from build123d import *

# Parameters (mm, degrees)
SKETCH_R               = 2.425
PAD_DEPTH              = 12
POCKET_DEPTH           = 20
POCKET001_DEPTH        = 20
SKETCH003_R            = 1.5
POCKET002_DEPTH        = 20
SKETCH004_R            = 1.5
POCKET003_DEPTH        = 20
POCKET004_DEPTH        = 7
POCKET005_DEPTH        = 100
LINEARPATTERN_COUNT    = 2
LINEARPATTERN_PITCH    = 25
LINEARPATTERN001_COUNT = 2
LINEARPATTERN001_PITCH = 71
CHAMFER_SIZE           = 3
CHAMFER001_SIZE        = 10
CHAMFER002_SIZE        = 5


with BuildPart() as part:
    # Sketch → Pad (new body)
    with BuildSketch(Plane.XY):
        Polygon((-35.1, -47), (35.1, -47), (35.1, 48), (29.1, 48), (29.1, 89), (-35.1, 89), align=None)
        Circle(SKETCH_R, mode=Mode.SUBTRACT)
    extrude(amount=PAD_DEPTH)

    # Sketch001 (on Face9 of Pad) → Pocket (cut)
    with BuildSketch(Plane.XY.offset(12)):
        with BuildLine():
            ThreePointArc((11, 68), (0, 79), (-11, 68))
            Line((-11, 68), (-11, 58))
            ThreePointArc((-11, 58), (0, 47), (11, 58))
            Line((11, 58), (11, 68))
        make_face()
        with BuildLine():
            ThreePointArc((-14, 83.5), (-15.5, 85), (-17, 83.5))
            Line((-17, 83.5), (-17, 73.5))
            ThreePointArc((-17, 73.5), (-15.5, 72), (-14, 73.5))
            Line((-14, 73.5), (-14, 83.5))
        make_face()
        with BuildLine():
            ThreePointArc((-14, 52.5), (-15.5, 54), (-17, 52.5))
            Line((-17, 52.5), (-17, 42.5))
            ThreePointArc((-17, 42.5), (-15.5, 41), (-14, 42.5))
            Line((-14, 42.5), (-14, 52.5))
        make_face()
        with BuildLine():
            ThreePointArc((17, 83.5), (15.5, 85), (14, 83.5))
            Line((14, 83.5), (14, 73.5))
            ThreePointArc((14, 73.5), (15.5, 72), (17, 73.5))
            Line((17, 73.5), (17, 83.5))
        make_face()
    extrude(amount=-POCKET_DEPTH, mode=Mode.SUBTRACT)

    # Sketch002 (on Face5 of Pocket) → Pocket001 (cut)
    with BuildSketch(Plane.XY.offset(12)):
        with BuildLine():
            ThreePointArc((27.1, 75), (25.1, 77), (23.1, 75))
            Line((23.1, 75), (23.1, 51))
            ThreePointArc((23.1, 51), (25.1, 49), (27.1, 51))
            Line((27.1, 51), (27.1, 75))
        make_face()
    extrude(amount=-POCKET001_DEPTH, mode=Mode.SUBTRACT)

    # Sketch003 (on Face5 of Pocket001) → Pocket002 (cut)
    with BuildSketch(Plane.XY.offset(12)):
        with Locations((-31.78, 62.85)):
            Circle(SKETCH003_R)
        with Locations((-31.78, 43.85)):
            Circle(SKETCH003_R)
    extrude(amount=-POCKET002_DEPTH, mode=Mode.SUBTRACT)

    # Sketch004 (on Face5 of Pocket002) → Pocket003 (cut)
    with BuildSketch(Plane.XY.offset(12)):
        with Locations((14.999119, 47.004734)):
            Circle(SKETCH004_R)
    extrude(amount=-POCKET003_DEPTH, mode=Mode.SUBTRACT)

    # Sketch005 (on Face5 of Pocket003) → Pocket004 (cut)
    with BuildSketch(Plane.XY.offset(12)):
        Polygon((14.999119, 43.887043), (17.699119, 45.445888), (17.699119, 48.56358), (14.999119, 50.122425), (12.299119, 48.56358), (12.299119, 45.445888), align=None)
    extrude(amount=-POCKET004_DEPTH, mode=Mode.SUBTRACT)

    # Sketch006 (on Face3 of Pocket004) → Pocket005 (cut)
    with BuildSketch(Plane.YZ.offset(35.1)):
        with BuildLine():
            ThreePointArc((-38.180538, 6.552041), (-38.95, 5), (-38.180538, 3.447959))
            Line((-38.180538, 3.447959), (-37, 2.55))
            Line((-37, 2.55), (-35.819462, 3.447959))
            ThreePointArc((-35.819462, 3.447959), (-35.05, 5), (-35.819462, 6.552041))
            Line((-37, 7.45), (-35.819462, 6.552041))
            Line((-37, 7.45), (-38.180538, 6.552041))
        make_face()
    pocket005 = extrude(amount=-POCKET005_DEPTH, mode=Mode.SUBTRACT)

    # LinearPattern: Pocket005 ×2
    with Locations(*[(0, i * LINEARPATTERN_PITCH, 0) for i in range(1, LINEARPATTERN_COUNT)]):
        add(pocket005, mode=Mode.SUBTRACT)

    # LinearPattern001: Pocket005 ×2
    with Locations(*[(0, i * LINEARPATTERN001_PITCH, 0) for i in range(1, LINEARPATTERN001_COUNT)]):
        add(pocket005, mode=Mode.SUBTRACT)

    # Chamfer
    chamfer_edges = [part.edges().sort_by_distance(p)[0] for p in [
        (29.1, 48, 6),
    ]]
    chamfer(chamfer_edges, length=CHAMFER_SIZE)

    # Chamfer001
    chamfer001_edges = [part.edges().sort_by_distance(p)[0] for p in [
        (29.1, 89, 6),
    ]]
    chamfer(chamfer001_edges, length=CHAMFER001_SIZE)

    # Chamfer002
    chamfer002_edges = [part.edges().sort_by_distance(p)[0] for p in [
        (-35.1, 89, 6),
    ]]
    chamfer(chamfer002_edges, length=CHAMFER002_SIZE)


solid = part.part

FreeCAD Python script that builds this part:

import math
import FreeCAD as App
import Part
import Sketcher

V = App.Vector
Q = App.Units.Quantity


def edges_at(feature, points):
    """Names of the edges that pass closest to the given points."""
    edges = feature.Shape.Edges
    near = lambda p: min(range(len(edges)), key=lambda i: edges[i].distToShape(Part.Vertex(*p))[0])
    return sorted({f"Edge{near(p) + 1}" for p in points})

doc = App.newDocument("Part")
body = doc.addObject("PartDesign::Body", "Body")

sketch1 = doc.addObject("Sketcher::SketchObject", "Sketch")
body.addObject(sketch1)
sketch1.AttachmentSupport = (doc.XY_Plane, [""])
sketch1.MapMode = "FlatFace"
sketch1.addGeometry([
    Part.LineSegment(V(-35.1, -47, 0), V(35.1, -47, 0)),
    Part.LineSegment(V(35.1, -47, 0), V(35.1, 48, 0)),
    Part.LineSegment(V(35.1, 48, 0), V(29.1, 48, 0)),
    Part.LineSegment(V(29.1, 48, 0), V(29.1, 89, 0)),
    Part.LineSegment(V(29.1, 89, 0), V(-35.1, 89, 0)),
    Part.LineSegment(V(-35.1, 89, 0), V(-35.1, -47, 0)),
    Part.Circle(V(0, 0, 0), V(0, 0, 1), 2.4),
], False)
sketch1.addConstraint([
    Sketcher.Constraint("Coincident", 0, 2, 1, 1),
    Sketcher.Constraint("Coincident", 1, 2, 2, 1),
    Sketcher.Constraint("Coincident", 2, 2, 3, 1),
    Sketcher.Constraint("Coincident", 3, 2, 4, 1),
    Sketcher.Constraint("Coincident", 4, 2, 5, 1),
    Sketcher.Constraint("Coincident", 5, 2, 0, 1),
    Sketcher.Constraint("Horizontal", 0),
    Sketcher.Constraint("Vertical", 1),
    Sketcher.Constraint("Horizontal", 2),
    Sketcher.Constraint("Vertical", 3),
    Sketcher.Constraint("Horizontal", 4),
    Sketcher.Constraint("Vertical", 5),
    Sketcher.Constraint("Coincident", 6, 3, -1, 1),
    Sketcher.Constraint("Diameter", 6, 4.85),
    Sketcher.Constraint("DistanceX", 2, 2, 2, 1, 6.0),
    Sketcher.Constraint("DistanceY", 1, 1, 1, 2, 95.0),
    Sketcher.Constraint("DistanceY", 3, 1, 3, 2, 41.0),
    Sketcher.Constraint("DistanceX", 0, 1, 0, 2, 70.2),
    Sketcher.Constraint("DistanceY", 0, 2, -1, 1, 47.0),
    Sketcher.Constraint("DistanceX", -1, 1, 0, 2, 35.1),
])
pad1 = doc.addObject("PartDesign::Pad", "Pad")
body.addObject(pad1)
pad1.Profile = sketch1
pad1.Length = 12

sketch2 = doc.addObject("Sketcher::SketchObject", "Sketch001")
body.addObject(sketch2)
sketch2.AttachmentSupport = (doc.XY_Plane, [""])
sketch2.MapMode = "FlatFace"
sketch2.AttachmentOffset = App.Placement(V(0, 0, 12), App.Rotation())
sketch2.addGeometry([
    Part.ArcOfCircle(Part.Circle(V(0, 68, 0), V(0, 0, 1), 11), math.radians(0), math.radians(180)),
    Part.LineSegment(V(-11, 68, 0), V(-11, 58, 0)),
    Part.ArcOfCircle(Part.Circle(V(0, 58, 0), V(0, 0, 1), 11), math.radians(180), math.radians(360)),
    Part.LineSegment(V(11, 58, 0), V(11, 68, 0)),
    Part.ArcOfCircle(Part.Circle(V(-15.5, 83.5, 0), V(0, 0, 1), 1.5), math.radians(0), math.radians(180)),
    Part.LineSegment(V(-17, 83.5, 0), V(-17, 73.5, 0)),
    Part.ArcOfCircle(Part.Circle(V(-15.5, 73.5, 0), V(0, 0, 1), 1.5), math.radians(180), math.radians(360)),
    Part.LineSegment(V(-14, 73.5, 0), V(-14, 83.5, 0)),
    Part.ArcOfCircle(Part.Circle(V(-15.5, 52.5, 0), V(0, 0, 1), 1.5), math.radians(0), math.radians(180)),
    Part.LineSegment(V(-17, 52.5, 0), V(-17, 42.5, 0)),
    Part.ArcOfCircle(Part.Circle(V(-15.5, 42.5, 0), V(0, 0, 1), 1.5), math.radians(180), math.radians(360)),
    Part.LineSegment(V(-14, 42.5, 0), V(-14, 52.5, 0)),
    Part.ArcOfCircle(Part.Circle(V(15.5, 83.5, 0), V(0, 0, 1), 1.5), math.radians(0), math.radians(180)),
    Part.LineSegment(V(14, 83.5, 0), V(14, 73.5, 0)),
    Part.ArcOfCircle(Part.Circle(V(15.5, 73.5, 0), V(0, 0, 1), 1.5), math.radians(180), math.radians(360)),
    Part.LineSegment(V(17, 73.5, 0), V(17, 83.5, 0)),
], False)
sketch2.addConstraint([
    Sketcher.Constraint("Tangent", 0, 2, 1, 1),
    Sketcher.Constraint("Tangent", 1, 2, 2, 1),
    Sketcher.Constraint("Tangent", 2, 2, 3, 1),
    Sketcher.Constraint("Tangent", 3, 2, 0, 1),
    Sketcher.Constraint("Tangent", 4, 2, 5, 1),
    Sketcher.Constraint("Tangent", 5, 2, 6, 1),
    Sketcher.Constraint("Tangent", 6, 2, 7, 1),
    Sketcher.Constraint("Tangent", 7, 2, 4, 1),
    Sketcher.Constraint("Tangent", 8, 2, 9, 1),
    Sketcher.Constraint("Tangent", 9, 2, 10, 1),
    Sketcher.Constraint("Tangent", 10, 2, 11, 1),
    Sketcher.Constraint("Tangent", 11, 2, 8, 1),
    Sketcher.Constraint("Tangent", 12, 2, 13, 1),
    Sketcher.Constraint("Tangent", 13, 2, 14, 1),
    Sketcher.Constraint("Tangent", 14, 2, 15, 1),
    Sketcher.Constraint("Tangent", 15, 2, 12, 1),
    Sketcher.Constraint("Vertical", 1),
    Sketcher.Constraint("Vertical", 3),
    Sketcher.Constraint("Vertical", 5),
    Sketcher.Constraint("Vertical", 7),
    Sketcher.Constraint("Vertical", 9),
    Sketcher.Constraint("Vertical", 11),
    Sketcher.Constraint("Vertical", 13),
    Sketcher.Constraint("Vertical", 15),
    Sketcher.Constraint("Equal", 6, 8),
    Sketcher.Constraint("Equal", 10, 12),
    Sketcher.Constraint("Symmetric", 4, 3, 12, 3, -2),
    Sketcher.Constraint("PointOnObject", 0, 3, -2),
    Sketcher.Constraint("Horizontal", 6, 3, 14, 3),
    Sketcher.Constraint("Vertical", 6, 3, 8, 3),
    Sketcher.Constraint("Equal", 3, 5),
    Sketcher.Constraint("Equal", 7, 9),
    Sketcher.Constraint("Radius", 0, 11.0),
    Sketcher.Constraint("Radius", 4, 1.5),
    Sketcher.Constraint("DistanceY", 1, 2, 1, 1, 10.0),
    Sketcher.Constraint("DistanceY", -1, 1, 0, 3, 68.0),
    Sketcher.Constraint("DistanceX", 4, 2, -1, 1, 17.0),
    Sketcher.Constraint("DistanceY", 8, 3, 6, 3, 21.0),
    Sketcher.Constraint("DistanceY", -1, 1, 4, 3, 83.5),
])
pocket1 = doc.addObject("PartDesign::Pocket", "Pocket")
body.addObject(pocket1)
pocket1.Profile = sketch2
pocket1.Length = 20

sketch3 = doc.addObject("Sketcher::SketchObject", "Sketch002")
body.addObject(sketch3)
sketch3.AttachmentSupport = (doc.XY_Plane, [""])
sketch3.MapMode = "FlatFace"
sketch3.AttachmentOffset = App.Placement(V(0, 0, 12), App.Rotation())
sketch3.addGeometry([
    Part.ArcOfCircle(Part.Circle(V(25.1, 75, 0), V(0, 0, 1), 2), math.radians(0), math.radians(180)),
    Part.LineSegment(V(23.1, 75, 0), V(23.1, 51, 0)),
    Part.ArcOfCircle(Part.Circle(V(25.1, 51, 0), V(0, 0, 1), 2), math.radians(180), math.radians(360)),
    Part.LineSegment(V(27.1, 51, 0), V(27.1, 75, 0)),
], False)
sketch3.addConstraint([
    Sketcher.Constraint("Tangent", 0, 2, 1, 1),
    Sketcher.Constraint("Tangent", 1, 2, 2, 1),
    Sketcher.Constraint("Tangent", 2, 2, 3, 1),
    Sketcher.Constraint("Tangent", 3, 2, 0, 1),
    Sketcher.Constraint("Vertical", 1),
    Sketcher.Constraint("Vertical", 3),
    Sketcher.Constraint("Radius", 0, 2.0),
    Sketcher.Constraint("DistanceY", 1, 2, 1, 1, 24.0),
    Sketcher.Constraint("DistanceY", -1, 1, 0, 3, 75.0),
    Sketcher.Constraint("DistanceX", -1, 1, 0, 3, 25.1),
])
pocket2 = doc.addObject("PartDesign::Pocket", "Pocket001")
body.addObject(pocket2)
pocket2.Profile = sketch3
pocket2.Length = 20

sketch4 = doc.addObject("Sketcher::SketchObject", "Sketch003")
body.addObject(sketch4)
sketch4.AttachmentSupport = (doc.XY_Plane, [""])
sketch4.MapMode = "FlatFace"
sketch4.AttachmentOffset = App.Placement(V(0, 0, 12), App.Rotation())
sketch4.addGeometry([
    Part.Circle(V(-31.8, 62.9, 0), V(0, 0, 1), 1.5),
    Part.Circle(V(-31.8, 43.9, 0), V(0, 0, 1), 1.5),
], False)
sketch4.addConstraint([
    Sketcher.Constraint("Equal", 0, 1),
    Sketcher.Constraint("Vertical", 0, 3, 1, 3),
    Sketcher.Constraint("Diameter", 0, 3.0),
    Sketcher.Constraint("DistanceY", 1, 3, 0, 3, 19.0),
    Sketcher.Constraint("DistanceX", 0, 3, -1, 1, 31.78),
    Sketcher.Constraint("DistanceY", -1, 1, 0, 3, 62.85),
])
pocket3 = doc.addObject("PartDesign::Pocket", "Pocket002")
body.addObject(pocket3)
pocket3.Profile = sketch4
pocket3.Length = 20

sketch5 = doc.addObject("Sketcher::SketchObject", "Sketch004")
body.addObject(sketch5)
sketch5.AttachmentSupport = (doc.XY_Plane, [""])
sketch5.MapMode = "FlatFace"
sketch5.AttachmentOffset = App.Placement(V(0, 0, 12), App.Rotation())
sketch5.addGeometry(Part.Circle(V(15, 47, 0), V(0, 0, 1), 1.5), False)
sketch5.addConstraint([
    Sketcher.Constraint("Diameter", 0, 3.0),
    Sketcher.Constraint("DistanceX", -1, 1, 0, 3, 14.999119),
    Sketcher.Constraint("DistanceY", -1, 1, 0, 3, 47.004734),
])
pocket4 = doc.addObject("PartDesign::Pocket", "Pocket003")
body.addObject(pocket4)
pocket4.Profile = sketch5
pocket4.Length = 20

sketch6 = doc.addObject("Sketcher::SketchObject", "Sketch005")
body.addObject(sketch6)
sketch6.AttachmentSupport = (doc.XY_Plane, [""])
sketch6.MapMode = "FlatFace"
sketch6.AttachmentOffset = App.Placement(V(0, 0, 12), App.Rotation())
sketch6.addGeometry([
    Part.LineSegment(V(15, 43.9, 0), V(17.7, 45.4, 0)),
    Part.LineSegment(V(17.7, 45.4, 0), V(17.7, 48.6, 0)),
    Part.LineSegment(V(17.7, 48.6, 0), V(15, 50.1, 0)),
    Part.LineSegment(V(15, 50.1, 0), V(12.3, 48.6, 0)),
    Part.LineSegment(V(12.3, 48.6, 0), V(12.3, 45.4, 0)),
    Part.LineSegment(V(12.3, 45.4, 0), V(15, 43.9, 0)),
], False)
sketch6.addConstraint([
    Sketcher.Constraint("Coincident", 0, 2, 1, 1),
    Sketcher.Constraint("Coincident", 1, 2, 2, 1),
    Sketcher.Constraint("Coincident", 2, 2, 3, 1),
    Sketcher.Constraint("Coincident", 3, 2, 4, 1),
    Sketcher.Constraint("Coincident", 4, 2, 5, 1),
    Sketcher.Constraint("Coincident", 5, 2, 0, 1),
    Sketcher.Constraint("Vertical", 1),
    Sketcher.Constraint("Vertical", 4),
    Sketcher.Constraint("Parallel", 0, 3),
    Sketcher.Constraint("Parallel", 2, 5),
    Sketcher.Constraint("Horizontal", 1, 2, 3, 2),
    Sketcher.Constraint("Horizontal", 0, 2, 4, 2),
    Sketcher.Constraint("Vertical", 2, 2, 5, 2),
    Sketcher.Constraint("Angle", 0, Q("29.999988 deg")),
    Sketcher.Constraint("DistanceX", 2, 2, 1, 2, 2.7),
    Sketcher.Constraint("DistanceY", 1, 1, 1, 2, 3.117692),
    Sketcher.Constraint("DistanceX", -1, 1, 0, 2, 17.699119),
    Sketcher.Constraint("DistanceY", -1, 1, 1, 2, 48.56358),
])
pocket5 = doc.addObject("PartDesign::Pocket", "Pocket004")
body.addObject(pocket5)
pocket5.Profile = sketch6
pocket5.Length = 7

sketch7 = doc.addObject("Sketcher::SketchObject", "Sketch006")
body.addObject(sketch7)
sketch7.AttachmentSupport = (doc.YZ_Plane, [""])
sketch7.MapMode = "FlatFace"
sketch7.AttachmentOffset = App.Placement(V(0, 0, 35.1), App.Rotation())
sketch7.addGeometry([
    Part.ArcOfCircle(Part.Circle(V(-37, 5, 0), V(0, 0, 1), 2), math.radians(127), math.radians(233)),
    Part.LineSegment(V(-38.2, 3.4, 0), V(-37, 2.5, 0)),
    Part.LineSegment(V(-37, 2.5, 0), V(-35.8, 3.4, 0)),
    Part.ArcOfCircle(Part.Circle(V(-37, 5, 0), V(0, 0, 1), 2), math.radians(-53), math.radians(53)),
    Part.LineSegment(V(-35.8, 6.6, 0), V(-37, 7.5, 0)),
    Part.LineSegment(V(-37, 7.5, 0), V(-38.2, 6.6, 0)),
], False)
sketch7.addConstraint([
    Sketcher.Constraint("Tangent", 0, 2, 1, 1),
    Sketcher.Constraint("Coincident", 1, 2, 2, 1),
    Sketcher.Constraint("Tangent", 2, 2, 3, 1),
    Sketcher.Constraint("Tangent", 3, 2, 4, 1),
    Sketcher.Constraint("Coincident", 4, 2, 5, 1),
    Sketcher.Constraint("Tangent", 5, 2, 0, 1),
    Sketcher.Constraint("Coincident", 3, 3, 0, 3),
    Sketcher.Constraint("Equal", 0, 3),
    Sketcher.Constraint("Parallel", 1, 4),
    Sketcher.Constraint("Parallel", 2, 5),
    Sketcher.Constraint("Horizontal", 0, 2, 2, 2),
    Sketcher.Constraint("Radius", 0, 1.950001),
    Sketcher.Constraint("DistanceX", 0, 3, -1, 1, 36.999999),
    Sketcher.Constraint("DistanceY", -1, 1, 0, 3, 5.0),
    Sketcher.Constraint("DistanceY", -1, 1, 1, 2, 2.55),
])
pocket6 = doc.addObject("PartDesign::Pocket", "Pocket005")
body.addObject(pocket6)
pocket6.Profile = sketch7
pocket6.Length = 100
doc.recompute()

linearpattern = doc.addObject("PartDesign::LinearPattern", "LinearPattern")
body.addObject(linearpattern)
linearpattern.Originals = [pocket6]
linearpattern.Direction = (doc.Y_Axis, [""])
linearpattern.Mode = "offset"
linearpattern.Offset = 25
linearpattern.Occurrences = 2
body.Tip = linearpattern
doc.recompute()

linearpattern2 = doc.addObject("PartDesign::LinearPattern", "LinearPattern001")
body.addObject(linearpattern2)
linearpattern2.Originals = [pocket6]
linearpattern2.Direction = (doc.Y_Axis, [""])
linearpattern2.Mode = "offset"
linearpattern2.Offset = 71
linearpattern2.Occurrences = 2
body.Tip = linearpattern2
doc.recompute()

chamfer = doc.addObject("PartDesign::Chamfer", "Chamfer")
body.addObject(chamfer)
chamfer.Base = (linearpattern2, edges_at(linearpattern2, [(29.1, 48, 6)]))
chamfer.Size = 3
doc.recompute()

chamfer2 = doc.addObject("PartDesign::Chamfer", "Chamfer001")
body.addObject(chamfer2)
chamfer2.Base = (chamfer, edges_at(chamfer, [(29.1, 89, 6)]))
chamfer2.Size = 10
doc.recompute()

chamfer3 = doc.addObject("PartDesign::Chamfer", "Chamfer002")
body.addObject(chamfer3)
chamfer3.Base = (chamfer2, edges_at(chamfer2, [(-35.1, 89, 6)]))
chamfer3.Size = 5

doc.recompute()
